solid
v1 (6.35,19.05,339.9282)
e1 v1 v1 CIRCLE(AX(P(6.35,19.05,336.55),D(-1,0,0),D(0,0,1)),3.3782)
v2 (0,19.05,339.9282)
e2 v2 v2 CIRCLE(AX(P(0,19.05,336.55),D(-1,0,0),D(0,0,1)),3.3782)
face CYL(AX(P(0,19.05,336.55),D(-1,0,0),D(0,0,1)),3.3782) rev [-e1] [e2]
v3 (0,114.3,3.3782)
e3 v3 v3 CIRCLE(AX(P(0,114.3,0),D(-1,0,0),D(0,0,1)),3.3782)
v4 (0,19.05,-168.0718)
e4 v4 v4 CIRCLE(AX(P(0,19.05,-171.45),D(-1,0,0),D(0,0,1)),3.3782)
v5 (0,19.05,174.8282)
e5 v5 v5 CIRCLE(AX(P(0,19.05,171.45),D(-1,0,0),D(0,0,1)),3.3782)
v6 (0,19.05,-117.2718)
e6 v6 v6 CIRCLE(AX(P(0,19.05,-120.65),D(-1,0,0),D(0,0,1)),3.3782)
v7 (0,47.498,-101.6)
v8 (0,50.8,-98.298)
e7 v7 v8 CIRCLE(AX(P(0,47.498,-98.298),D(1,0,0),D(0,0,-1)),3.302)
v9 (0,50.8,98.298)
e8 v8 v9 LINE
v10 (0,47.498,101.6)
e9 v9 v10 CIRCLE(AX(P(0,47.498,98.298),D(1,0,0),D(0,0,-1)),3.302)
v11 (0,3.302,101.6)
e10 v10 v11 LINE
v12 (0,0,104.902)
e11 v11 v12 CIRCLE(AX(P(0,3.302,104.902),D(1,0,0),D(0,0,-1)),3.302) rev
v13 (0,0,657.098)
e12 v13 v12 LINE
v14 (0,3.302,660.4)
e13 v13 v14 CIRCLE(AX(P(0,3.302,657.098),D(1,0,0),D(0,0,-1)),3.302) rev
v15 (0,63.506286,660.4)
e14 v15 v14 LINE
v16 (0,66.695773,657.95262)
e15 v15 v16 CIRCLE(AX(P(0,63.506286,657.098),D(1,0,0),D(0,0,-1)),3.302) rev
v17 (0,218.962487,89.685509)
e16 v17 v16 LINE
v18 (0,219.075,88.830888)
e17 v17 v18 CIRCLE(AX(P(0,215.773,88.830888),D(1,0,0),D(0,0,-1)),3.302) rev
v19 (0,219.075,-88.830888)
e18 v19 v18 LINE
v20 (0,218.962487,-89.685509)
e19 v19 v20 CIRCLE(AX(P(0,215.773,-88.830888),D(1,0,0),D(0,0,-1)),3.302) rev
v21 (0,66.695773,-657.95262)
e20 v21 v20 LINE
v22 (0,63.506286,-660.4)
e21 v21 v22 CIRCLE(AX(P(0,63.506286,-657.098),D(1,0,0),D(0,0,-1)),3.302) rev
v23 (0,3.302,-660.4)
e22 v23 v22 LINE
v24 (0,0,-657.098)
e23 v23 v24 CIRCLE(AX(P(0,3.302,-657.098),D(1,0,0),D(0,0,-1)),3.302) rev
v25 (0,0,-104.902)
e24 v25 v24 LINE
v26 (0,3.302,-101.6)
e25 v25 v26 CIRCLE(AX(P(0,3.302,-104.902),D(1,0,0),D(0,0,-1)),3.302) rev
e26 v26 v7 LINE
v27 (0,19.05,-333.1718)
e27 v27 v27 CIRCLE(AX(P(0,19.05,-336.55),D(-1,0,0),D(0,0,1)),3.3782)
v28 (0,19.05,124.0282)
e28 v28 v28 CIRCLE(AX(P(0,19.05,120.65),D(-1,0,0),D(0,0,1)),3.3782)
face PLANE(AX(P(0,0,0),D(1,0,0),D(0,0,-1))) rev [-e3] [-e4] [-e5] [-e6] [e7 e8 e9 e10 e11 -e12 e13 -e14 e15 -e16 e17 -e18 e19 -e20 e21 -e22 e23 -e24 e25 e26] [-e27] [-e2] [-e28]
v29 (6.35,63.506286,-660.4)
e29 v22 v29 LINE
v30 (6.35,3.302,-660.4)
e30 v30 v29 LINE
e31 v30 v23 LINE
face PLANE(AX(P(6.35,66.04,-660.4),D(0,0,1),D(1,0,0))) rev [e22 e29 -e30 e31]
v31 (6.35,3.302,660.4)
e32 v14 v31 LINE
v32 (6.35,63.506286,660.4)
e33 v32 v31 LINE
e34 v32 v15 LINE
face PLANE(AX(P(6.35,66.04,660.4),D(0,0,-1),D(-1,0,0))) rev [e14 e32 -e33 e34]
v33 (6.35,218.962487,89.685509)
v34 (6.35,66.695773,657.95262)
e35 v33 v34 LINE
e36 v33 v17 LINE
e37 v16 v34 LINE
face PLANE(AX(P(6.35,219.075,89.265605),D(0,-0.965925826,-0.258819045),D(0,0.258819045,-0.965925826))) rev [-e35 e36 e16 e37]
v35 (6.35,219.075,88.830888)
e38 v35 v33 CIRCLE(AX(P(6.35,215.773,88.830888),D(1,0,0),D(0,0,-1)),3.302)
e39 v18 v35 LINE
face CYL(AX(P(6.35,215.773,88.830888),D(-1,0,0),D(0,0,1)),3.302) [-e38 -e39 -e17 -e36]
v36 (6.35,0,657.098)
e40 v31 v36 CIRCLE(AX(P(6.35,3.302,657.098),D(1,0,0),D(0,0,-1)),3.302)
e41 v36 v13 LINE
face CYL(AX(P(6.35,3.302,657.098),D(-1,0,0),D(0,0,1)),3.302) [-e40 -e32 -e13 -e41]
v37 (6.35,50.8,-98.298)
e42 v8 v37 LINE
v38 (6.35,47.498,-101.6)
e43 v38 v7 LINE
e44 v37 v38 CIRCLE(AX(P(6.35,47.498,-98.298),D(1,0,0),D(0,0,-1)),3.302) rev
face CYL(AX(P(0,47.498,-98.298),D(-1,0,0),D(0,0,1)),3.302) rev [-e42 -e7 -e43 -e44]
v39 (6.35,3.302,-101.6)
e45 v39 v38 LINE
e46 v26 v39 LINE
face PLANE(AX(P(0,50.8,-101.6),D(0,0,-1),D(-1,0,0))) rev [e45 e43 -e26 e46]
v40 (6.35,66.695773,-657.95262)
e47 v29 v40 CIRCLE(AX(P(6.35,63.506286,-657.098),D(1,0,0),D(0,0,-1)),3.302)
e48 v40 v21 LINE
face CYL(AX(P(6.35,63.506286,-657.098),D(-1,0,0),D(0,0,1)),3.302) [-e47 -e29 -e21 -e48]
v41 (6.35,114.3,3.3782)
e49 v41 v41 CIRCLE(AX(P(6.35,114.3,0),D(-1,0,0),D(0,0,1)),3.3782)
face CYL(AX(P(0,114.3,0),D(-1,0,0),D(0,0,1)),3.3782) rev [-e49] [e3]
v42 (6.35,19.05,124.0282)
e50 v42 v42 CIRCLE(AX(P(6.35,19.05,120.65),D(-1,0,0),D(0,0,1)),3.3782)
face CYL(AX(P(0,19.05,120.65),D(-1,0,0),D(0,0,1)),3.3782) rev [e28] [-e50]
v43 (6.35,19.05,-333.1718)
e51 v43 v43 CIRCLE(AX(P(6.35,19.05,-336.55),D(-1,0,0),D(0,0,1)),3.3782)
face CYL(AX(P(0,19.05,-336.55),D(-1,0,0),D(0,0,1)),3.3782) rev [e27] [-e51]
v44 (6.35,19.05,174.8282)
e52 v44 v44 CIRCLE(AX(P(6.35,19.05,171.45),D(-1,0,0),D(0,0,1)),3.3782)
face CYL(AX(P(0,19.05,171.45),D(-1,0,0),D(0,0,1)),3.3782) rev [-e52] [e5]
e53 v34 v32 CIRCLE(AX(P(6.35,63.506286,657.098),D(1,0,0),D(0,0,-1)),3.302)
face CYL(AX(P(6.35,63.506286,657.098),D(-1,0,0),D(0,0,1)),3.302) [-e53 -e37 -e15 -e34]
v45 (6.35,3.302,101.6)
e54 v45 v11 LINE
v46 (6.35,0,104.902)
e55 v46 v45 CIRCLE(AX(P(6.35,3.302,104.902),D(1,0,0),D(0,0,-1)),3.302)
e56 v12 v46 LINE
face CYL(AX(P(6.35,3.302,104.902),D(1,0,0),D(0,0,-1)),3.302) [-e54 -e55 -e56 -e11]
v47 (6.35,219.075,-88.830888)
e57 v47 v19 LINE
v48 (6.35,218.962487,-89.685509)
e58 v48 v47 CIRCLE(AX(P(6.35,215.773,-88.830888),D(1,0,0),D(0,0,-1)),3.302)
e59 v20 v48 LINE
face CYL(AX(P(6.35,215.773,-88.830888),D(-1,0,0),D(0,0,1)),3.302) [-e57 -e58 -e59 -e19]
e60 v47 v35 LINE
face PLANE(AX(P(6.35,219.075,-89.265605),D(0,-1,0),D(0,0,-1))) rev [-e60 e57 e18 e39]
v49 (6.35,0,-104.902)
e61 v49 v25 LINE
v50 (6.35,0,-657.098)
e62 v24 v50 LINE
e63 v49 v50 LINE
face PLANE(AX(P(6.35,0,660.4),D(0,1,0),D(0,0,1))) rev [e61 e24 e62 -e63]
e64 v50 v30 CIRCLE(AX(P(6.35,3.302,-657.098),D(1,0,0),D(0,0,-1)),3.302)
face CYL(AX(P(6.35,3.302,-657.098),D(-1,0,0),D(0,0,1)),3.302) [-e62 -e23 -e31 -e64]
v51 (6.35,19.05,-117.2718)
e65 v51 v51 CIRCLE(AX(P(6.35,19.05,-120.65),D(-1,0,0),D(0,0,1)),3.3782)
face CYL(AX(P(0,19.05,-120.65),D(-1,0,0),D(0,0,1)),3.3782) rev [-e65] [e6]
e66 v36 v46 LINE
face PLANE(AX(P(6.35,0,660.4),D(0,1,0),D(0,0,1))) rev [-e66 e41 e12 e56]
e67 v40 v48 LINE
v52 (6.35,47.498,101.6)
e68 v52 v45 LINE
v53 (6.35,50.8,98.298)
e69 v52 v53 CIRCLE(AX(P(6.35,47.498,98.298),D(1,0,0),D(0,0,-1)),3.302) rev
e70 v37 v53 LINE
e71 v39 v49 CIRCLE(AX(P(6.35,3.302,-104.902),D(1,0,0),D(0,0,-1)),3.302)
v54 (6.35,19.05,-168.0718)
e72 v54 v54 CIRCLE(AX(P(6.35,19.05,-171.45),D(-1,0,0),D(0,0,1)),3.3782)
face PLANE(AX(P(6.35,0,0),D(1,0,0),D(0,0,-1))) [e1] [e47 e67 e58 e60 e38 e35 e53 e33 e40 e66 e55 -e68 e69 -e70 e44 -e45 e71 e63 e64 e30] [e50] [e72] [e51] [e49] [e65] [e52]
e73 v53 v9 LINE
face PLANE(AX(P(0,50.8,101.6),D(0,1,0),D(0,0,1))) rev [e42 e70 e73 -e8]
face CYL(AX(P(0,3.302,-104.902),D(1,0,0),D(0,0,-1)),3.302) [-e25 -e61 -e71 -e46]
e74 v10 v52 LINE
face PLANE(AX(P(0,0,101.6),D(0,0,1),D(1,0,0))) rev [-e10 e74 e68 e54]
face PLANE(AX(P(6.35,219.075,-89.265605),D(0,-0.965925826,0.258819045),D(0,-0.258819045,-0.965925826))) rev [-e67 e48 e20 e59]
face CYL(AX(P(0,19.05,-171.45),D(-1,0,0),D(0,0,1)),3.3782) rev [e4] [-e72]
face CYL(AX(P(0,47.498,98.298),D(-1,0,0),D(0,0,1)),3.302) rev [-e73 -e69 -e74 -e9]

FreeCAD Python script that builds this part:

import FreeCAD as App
import Part
import Sketcher
Q = App.Units.Quantity


def edges_at(feature, points):
    """Names of the edges that pass closest to the given points."""
    edges = feature.Shape.Edges
    near = lambda p: min(range(len(edges)), key=lambda i: edges[i].distToShape(Part.Vertex(*p))[0])
    return sorted({f"Edge{near(p) + 1}" for p in points})


def add_polygon(sketch, points):
    """Adds a closed chain of lines whose ends are joined by coincident constraints."""
    first, n = sketch.GeometryCount, len(points)
    for a, b in zip(points, points[1:] + points[:1]):
        sketch.addGeometry(Part.LineSegment(App.Vector(*a, 0), App.Vector(*b, 0)), False)
    for i in range(n):
        sketch.addConstraint(Sketcher.Constraint("Coincident", first + i, 2, first + (i + 1) % n, 1))

doc = App.newDocument("Part")
body = doc.addObject("PartDesign::Body", "Body")

# Sketch on YZ plane
sketch1 = body.newObject("Sketcher::SketchObject", "Sketch")
sketch1.AttachmentSupport = (doc.getObject("YZ_Plane"), [""])
sketch1.MapMode = "FlatFace"
add_polygon(sketch1, [(219, -89), (219, 89), (66, 660), (0, 660), (0, -660), (66, -660)])  # lines 0-5
sketch1.addConstraint([
    Sketcher.Constraint("Vertical", 0),
    Sketcher.Constraint("Horizontal", 2),
    Sketcher.Constraint("Vertical", 3),
    Sketcher.Constraint("Horizontal", 4),
    Sketcher.Constraint("Symmetric", 2, 2, 3, 2, -1, 1),
    Sketcher.Constraint("Vertical", 1, 2, 4, 2),
    Sketcher.Constraint("Equal", 1, 5),
    Sketcher.Constraint("DistanceY", 3, 2, 3, 1, Q("52 in")),
    Sketcher.Constraint("DistanceX", 2, 2, 2, 1, Q("2.6 in")),
    Sketcher.Constraint("Angle", 1, Q("105 deg")),
    Sketcher.Constraint("DistanceX", -1, 1, 0, 2, Q("8.625 in")),
])
pad1 = body.newObject("PartDesign::Pad", "Pad")
pad1.Profile = sketch1
pad1.Length = Q("0.25 in")

# Sketch on YZ plane
sketch2 = body.newObject("Sketcher::SketchObject", "Sketch001")
sketch2.AttachmentSupport = (doc.getObject("YZ_Plane"), [""])
sketch2.MapMode = "FlatFace"
sketch2.AttachmentOffset = App.Placement(App.Vector(0, 0, 0.25 * 25.4), App.Rotation())
add_polygon(sketch2, [(51, 102), (0, 102), (0, -102), (51, -102)])  # lines 0-3
sketch2.addConstraint([
    Sketcher.Constraint("Horizontal", 0),
    Sketcher.Constraint("Vertical", 1),
    Sketcher.Constraint("Horizontal", 2),
    Sketcher.Constraint("Vertical", 3),
    Sketcher.Constraint("Symmetric", 0, 2, 1, 2, -1, 1),
    Sketcher.Constraint("DistanceX", 0, 2, 0, 1, Q("2 in")),
    Sketcher.Constraint("DistanceY", 1, 2, 1, 1, Q("8 in")),
])
pocket1 = body.newObject("PartDesign::Pocket", "Pocket")
pocket1.Profile = sketch2
pocket1.Type = "ThroughAll"

# Sketch on YZ plane
sketch3 = body.newObject("Sketcher::SketchObject", "Sketch002")
sketch3.AttachmentSupport = (doc.getObject("YZ_Plane"), [""])
sketch3.MapMode = "FlatFace"
sketch3.addGeometry([
    Part.Circle(App.Vector(19.1, -336.6, 0), App.Vector(0, 0, 1), 3.4),  # 0
    Part.Circle(App.Vector(19.1, -120.7, 0), App.Vector(0, 0, 1), 3.4),  # 1
    Part.Circle(App.Vector(19.1, 120.7, 0), App.Vector(0, 0, 1), 3.4),  # 2
    Part.Circle(App.Vector(19.1, 336.6, 0), App.Vector(0, 0, 1), 3.4),  # 3
    Part.Circle(App.Vector(114.3, 0, 0), App.Vector(0, 0, 1), 3.4),  # 4
    Part.Circle(App.Vector(19.1, -171.4, 0), App.Vector(0, 0, 1), 3.4),  # 5
    Part.Circle(App.Vector(19.1, 171.4, 0), App.Vector(0, 0, 1), 3.4),  # 6
], False)
sketch3.addConstraint([
    Sketcher.Constraint("Equal", 0, 1),
    Sketcher.Constraint("Equal", 1, 2),
    Sketcher.Constraint("Equal", 2, 3),
    Sketcher.Constraint("Equal", 3, 4),
    Sketcher.Constraint("Equal", 4, 5),
    Sketcher.Constraint("Equal", 5, 6),
    Sketcher.Constraint("Symmetric", 1, 3, 2, 3, -1),
    Sketcher.Constraint("Symmetric", 0, 3, 3, 3, -1),
    Sketcher.Constraint("Symmetric", 5, 3, 6, 3, -1),
    Sketcher.Constraint("PointOnObject", 4, 3, -1),
    Sketcher.Constraint("Vertical", 0, 3, 1, 3),
    Sketcher.Constraint("Vertical", 3, 3, 5, 3),
    Sketcher.Constraint("Diameter", 0, Q("0.266 in")),
    Sketcher.Constraint("DistanceY", 0, 3, 2, 3, Q("18 in")),
    Sketcher.Constraint("DistanceY", 5, 3, 1, 3, Q("2 in")),
    Sketcher.Constraint("DistanceX", -1, 1, 4, 3, Q("4.5 in")),
    Sketcher.Constraint("DistanceY", 0, 3, 1, 3, Q("8.5 in")),
    Sketcher.Constraint("DistanceX", -1, 1, 0, 3, Q("0.75 in")),
])
doc.recompute()
hole = body.newObject("PartDesign::Hole", "Hole")
hole.Profile = sketch3
hole.ThreadType = "None"
hole.Diameter = Q("0.266 in")
hole.DepthType = "ThroughAll"
hole.Reversed = True
doc.recompute()

fillet = body.newObject("PartDesign::Fillet", "Fillet")
fillet.Base = (hole, edges_at(hole, [
    (3.175, 66.04, 660.4),
    (3.175, 219.075, 89.266),
    (3.175, 219.075, -89.266),
    (3.175, 66.04, -660.4),
    (3.175, 0, -660.4),
    (3.175, 0, 660.4),
    (3.175, 0, -101.6),
    (3.175, 0, 101.6),
    (3.175, 50.8, 101.6),
    (3.175, 50.8, -101.6),
]))
fillet.Radius = Q("0.13 in")

doc.recompute()
